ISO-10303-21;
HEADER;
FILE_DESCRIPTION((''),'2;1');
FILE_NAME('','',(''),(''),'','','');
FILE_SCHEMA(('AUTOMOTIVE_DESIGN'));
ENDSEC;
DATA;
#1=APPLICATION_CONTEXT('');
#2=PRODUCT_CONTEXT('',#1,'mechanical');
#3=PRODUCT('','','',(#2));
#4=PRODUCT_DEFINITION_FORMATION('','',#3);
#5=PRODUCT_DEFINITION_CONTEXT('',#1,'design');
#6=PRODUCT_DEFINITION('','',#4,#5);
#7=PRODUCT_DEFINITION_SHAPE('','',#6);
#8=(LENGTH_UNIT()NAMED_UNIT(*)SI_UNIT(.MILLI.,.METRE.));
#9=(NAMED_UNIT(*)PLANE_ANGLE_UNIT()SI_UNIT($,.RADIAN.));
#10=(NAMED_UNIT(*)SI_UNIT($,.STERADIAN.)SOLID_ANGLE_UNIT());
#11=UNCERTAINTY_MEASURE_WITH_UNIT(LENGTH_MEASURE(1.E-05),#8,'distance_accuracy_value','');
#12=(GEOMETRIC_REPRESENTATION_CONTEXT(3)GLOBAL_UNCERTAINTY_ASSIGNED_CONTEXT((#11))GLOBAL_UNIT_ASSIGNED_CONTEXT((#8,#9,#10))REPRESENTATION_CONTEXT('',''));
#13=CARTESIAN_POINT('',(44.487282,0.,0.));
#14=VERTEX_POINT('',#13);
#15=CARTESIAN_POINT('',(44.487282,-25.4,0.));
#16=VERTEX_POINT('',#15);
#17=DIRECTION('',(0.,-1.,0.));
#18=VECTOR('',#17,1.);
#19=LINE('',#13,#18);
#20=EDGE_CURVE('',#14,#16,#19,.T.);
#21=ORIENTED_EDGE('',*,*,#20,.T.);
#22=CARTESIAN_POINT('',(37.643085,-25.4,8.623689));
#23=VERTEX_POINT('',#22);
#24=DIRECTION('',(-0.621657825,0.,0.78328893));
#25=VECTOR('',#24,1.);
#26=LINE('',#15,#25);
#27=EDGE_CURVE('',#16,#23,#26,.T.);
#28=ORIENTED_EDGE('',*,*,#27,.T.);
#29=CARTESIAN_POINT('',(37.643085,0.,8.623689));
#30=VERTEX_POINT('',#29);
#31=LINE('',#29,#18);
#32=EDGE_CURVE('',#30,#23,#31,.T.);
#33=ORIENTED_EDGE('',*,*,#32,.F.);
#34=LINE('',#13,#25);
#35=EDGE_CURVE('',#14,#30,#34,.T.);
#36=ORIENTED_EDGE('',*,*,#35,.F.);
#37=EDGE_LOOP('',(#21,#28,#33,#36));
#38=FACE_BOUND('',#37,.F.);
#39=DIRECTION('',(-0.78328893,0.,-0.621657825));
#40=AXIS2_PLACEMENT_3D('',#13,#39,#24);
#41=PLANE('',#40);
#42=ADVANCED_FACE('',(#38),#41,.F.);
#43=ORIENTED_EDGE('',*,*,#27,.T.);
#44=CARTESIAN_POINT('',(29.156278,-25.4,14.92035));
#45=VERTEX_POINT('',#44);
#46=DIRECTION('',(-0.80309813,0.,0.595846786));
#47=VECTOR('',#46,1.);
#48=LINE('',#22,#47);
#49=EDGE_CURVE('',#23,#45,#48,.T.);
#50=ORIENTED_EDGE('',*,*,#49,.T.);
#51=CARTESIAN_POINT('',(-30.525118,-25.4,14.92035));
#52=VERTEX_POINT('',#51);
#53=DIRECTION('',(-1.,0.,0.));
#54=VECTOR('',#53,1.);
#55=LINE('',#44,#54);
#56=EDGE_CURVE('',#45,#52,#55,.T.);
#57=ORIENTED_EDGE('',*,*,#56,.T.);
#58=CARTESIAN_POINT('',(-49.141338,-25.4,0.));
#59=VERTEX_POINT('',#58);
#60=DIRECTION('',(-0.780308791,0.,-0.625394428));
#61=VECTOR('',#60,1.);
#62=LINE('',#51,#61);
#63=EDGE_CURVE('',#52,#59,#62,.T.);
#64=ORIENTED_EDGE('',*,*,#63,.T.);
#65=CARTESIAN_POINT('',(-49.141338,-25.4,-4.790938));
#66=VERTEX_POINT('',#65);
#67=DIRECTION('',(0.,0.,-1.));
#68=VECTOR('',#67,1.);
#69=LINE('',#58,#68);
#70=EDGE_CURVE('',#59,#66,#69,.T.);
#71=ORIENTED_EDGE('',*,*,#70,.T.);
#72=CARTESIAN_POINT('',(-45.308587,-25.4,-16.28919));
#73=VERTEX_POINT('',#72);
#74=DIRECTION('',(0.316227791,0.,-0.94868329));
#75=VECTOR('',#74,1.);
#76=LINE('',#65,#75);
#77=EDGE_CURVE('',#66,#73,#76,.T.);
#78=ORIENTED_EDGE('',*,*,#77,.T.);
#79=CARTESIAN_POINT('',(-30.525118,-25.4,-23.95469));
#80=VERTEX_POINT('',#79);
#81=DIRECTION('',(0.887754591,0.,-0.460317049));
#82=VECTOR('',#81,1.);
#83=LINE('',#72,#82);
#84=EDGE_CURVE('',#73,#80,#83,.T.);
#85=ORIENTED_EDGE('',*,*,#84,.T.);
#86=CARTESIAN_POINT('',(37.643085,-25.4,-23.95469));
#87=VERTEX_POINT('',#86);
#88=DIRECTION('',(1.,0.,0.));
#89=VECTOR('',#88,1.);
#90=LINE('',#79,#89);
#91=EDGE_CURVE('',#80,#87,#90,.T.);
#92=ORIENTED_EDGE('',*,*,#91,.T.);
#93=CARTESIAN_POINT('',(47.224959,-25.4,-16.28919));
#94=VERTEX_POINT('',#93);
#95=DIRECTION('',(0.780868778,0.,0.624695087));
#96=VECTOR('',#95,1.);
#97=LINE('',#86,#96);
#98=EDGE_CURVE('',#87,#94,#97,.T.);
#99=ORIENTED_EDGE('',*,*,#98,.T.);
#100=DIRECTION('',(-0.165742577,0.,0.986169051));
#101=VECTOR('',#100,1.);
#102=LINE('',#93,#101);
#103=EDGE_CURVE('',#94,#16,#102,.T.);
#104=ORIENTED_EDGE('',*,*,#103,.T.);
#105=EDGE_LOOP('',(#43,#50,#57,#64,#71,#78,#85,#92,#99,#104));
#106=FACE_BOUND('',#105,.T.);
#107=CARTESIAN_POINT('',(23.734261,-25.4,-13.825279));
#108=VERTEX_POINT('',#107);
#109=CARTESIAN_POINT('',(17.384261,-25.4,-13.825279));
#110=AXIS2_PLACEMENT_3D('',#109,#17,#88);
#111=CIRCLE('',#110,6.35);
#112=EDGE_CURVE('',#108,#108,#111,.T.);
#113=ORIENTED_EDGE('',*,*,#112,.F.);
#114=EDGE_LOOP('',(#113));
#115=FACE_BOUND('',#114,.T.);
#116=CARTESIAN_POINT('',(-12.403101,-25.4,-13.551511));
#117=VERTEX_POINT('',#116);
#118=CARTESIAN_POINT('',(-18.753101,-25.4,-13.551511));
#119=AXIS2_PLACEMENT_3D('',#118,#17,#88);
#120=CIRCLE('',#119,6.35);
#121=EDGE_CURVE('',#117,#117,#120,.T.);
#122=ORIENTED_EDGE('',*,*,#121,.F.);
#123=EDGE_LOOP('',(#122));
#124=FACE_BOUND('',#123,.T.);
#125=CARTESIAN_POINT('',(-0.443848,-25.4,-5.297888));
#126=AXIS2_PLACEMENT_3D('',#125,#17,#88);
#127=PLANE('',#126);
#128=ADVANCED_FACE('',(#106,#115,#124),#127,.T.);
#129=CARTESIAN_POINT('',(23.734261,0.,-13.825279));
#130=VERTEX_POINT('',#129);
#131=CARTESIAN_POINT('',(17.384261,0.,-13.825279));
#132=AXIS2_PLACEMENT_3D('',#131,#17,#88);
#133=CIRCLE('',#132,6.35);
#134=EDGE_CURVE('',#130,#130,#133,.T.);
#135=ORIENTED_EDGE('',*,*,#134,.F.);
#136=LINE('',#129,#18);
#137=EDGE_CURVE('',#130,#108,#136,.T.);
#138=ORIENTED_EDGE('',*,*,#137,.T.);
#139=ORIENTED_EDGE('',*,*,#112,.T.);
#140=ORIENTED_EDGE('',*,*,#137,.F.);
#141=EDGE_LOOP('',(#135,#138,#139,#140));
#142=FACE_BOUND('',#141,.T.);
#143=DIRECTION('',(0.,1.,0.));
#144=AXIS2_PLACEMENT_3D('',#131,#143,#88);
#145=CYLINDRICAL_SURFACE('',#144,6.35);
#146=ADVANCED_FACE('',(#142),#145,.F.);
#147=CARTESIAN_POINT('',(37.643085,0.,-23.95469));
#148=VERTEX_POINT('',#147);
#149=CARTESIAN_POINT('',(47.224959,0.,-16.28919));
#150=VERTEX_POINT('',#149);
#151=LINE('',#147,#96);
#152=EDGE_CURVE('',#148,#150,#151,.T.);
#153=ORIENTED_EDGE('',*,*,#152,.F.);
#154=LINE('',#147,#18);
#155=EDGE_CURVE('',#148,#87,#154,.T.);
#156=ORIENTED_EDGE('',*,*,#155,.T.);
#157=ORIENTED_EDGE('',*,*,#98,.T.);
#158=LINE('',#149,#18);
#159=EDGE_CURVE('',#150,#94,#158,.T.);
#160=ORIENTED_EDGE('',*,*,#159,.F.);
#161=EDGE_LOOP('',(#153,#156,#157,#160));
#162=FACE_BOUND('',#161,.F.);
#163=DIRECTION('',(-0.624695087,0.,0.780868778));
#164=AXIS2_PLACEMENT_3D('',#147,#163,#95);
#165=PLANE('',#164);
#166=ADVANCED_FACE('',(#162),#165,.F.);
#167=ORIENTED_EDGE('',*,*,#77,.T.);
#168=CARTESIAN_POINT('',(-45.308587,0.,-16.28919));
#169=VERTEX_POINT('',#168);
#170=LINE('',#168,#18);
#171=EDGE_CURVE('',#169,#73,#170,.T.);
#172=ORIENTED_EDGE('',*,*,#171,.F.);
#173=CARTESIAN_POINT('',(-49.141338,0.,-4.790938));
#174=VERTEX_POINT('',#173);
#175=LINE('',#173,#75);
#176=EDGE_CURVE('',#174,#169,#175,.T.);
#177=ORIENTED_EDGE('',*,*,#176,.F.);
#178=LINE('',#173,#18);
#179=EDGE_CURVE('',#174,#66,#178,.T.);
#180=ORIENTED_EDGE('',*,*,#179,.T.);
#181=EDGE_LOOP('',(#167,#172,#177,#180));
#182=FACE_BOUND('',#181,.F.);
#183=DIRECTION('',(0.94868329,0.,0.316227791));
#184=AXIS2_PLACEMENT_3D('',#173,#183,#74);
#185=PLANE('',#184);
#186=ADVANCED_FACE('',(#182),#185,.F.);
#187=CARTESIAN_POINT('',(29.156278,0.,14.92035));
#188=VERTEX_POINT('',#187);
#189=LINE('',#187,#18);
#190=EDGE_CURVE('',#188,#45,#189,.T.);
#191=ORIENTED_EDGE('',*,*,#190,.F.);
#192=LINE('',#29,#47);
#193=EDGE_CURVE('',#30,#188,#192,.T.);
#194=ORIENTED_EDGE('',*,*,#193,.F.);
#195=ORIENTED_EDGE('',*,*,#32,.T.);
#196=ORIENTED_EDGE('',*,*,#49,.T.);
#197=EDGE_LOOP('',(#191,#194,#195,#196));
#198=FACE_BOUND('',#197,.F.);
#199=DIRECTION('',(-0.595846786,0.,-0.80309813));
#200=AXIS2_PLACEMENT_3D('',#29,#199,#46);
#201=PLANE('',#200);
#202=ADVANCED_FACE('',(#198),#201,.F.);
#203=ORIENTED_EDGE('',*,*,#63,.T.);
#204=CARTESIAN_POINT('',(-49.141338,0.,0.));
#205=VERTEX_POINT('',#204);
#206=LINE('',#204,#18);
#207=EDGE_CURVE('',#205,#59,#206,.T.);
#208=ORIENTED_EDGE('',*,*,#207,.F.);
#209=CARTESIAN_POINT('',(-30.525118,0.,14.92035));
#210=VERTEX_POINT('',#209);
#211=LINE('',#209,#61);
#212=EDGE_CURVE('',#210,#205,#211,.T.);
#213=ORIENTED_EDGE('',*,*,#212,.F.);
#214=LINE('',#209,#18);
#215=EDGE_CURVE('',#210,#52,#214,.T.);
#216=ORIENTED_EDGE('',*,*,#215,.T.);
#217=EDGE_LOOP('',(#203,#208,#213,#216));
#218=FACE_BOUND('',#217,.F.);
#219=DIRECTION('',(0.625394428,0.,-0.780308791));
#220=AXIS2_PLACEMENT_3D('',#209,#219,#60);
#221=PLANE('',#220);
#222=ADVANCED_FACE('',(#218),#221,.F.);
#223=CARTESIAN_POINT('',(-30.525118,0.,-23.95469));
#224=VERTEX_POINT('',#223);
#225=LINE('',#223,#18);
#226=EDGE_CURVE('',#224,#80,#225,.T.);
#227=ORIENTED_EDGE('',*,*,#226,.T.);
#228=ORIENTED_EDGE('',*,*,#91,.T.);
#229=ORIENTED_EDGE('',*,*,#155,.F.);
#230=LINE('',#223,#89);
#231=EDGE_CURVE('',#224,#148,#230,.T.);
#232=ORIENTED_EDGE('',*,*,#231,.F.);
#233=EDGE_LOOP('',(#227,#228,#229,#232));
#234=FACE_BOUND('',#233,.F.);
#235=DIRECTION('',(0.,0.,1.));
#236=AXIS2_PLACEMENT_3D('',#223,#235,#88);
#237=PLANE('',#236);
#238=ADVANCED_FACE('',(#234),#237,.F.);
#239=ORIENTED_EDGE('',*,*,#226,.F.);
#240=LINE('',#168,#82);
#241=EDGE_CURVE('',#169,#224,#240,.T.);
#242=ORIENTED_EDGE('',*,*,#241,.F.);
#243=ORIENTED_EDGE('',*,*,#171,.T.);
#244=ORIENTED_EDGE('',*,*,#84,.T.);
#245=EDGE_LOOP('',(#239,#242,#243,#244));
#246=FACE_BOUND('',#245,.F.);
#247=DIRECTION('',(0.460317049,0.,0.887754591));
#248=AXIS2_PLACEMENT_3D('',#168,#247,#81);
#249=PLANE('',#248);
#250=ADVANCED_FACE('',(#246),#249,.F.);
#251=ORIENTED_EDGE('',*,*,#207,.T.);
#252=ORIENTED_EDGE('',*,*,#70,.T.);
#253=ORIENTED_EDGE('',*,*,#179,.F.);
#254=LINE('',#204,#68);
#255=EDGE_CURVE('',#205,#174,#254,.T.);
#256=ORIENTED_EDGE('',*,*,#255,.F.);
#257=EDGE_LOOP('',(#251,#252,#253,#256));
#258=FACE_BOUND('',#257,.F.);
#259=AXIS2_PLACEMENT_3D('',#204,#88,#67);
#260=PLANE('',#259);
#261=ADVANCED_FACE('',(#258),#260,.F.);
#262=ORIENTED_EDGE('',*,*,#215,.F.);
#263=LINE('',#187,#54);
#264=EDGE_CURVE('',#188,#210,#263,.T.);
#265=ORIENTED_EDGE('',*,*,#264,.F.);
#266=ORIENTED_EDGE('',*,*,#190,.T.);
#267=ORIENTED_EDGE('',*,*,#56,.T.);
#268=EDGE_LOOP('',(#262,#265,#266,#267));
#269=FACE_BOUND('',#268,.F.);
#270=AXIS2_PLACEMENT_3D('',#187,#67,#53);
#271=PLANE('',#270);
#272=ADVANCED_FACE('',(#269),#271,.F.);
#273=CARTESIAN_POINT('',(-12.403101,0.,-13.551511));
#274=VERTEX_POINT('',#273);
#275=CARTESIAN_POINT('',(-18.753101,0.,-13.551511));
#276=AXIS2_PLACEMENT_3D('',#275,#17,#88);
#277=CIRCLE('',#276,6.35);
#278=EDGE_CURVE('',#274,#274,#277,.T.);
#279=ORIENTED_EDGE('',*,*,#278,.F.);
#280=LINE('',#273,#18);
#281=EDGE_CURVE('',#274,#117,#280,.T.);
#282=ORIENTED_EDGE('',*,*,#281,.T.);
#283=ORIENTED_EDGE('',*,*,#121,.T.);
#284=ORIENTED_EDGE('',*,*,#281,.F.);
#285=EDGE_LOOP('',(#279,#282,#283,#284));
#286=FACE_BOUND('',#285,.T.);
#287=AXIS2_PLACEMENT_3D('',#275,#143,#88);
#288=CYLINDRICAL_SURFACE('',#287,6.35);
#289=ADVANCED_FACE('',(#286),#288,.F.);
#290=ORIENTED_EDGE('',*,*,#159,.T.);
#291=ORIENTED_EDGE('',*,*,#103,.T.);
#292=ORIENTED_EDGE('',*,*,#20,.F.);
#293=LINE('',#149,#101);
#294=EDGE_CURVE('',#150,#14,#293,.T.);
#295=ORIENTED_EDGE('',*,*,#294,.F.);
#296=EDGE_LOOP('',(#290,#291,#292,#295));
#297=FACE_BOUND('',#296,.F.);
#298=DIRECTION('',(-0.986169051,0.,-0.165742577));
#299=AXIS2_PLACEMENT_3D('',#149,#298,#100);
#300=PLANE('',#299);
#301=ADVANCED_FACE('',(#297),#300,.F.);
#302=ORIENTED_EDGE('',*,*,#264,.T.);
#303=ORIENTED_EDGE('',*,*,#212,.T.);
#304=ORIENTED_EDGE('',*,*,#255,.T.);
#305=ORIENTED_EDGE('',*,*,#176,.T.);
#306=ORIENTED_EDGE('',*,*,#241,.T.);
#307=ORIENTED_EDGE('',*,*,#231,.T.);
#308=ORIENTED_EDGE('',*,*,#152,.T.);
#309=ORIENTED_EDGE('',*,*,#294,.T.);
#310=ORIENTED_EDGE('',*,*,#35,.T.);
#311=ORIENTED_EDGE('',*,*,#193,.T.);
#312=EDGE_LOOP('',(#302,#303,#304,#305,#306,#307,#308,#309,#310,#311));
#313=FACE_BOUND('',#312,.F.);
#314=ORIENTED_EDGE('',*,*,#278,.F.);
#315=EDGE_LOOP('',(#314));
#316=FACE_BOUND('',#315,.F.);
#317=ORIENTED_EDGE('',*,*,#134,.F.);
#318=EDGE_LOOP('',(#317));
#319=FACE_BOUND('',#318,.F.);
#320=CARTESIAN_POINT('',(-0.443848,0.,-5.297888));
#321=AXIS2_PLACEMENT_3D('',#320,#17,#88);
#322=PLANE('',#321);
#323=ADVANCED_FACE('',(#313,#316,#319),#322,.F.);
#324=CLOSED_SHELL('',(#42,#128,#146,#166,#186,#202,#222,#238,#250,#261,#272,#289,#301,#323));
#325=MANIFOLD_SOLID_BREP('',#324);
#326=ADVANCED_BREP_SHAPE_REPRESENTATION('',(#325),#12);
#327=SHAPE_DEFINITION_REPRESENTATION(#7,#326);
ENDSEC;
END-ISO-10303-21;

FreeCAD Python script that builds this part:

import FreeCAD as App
import Part
import Sketcher
Q = App.Units.Quantity


def add_polygon(sketch, points):
    """Adds a closed chain of lines whose ends are joined by coincident constraints."""
    first, n = sketch.GeometryCount, len(points)
    for a, b in zip(points, points[1:] + points[:1]):
        sketch.addGeometry(Part.LineSegment(App.Vector(*a, 0), App.Vector(*b, 0)), False)
    for i in range(n):
        sketch.addConstraint(Sketcher.Constraint("Coincident", first + i, 2, first + (i + 1) % n, 1))

doc = App.newDocument("Part")
body = doc.addObject("PartDesign::Body", "Body")

sketch1 = doc.addObject("Sketcher::SketchObject", "Sketch")
body.addObject(sketch1)
sketch1.AttachmentSupport = (doc.XZ_Plane, [""])
sketch1.MapMode = "FlatFace"
add_polygon(sketch1, [(29.2, 14.9), (-30.5, 14.9), (-49.1, 0), (-49.1, -4.8), (-45.3, -16.3), (-30.5, -24), (37.6, -24), (47.2, -16.3), (44.5, 0), (37.6, 8.6)])
sketch1.addGeometry(Part.Circle(App.Vector(17.4, -13.8, 0), App.Vector(0, 0, 1), 6.3), False)
sketch1.addGeometry(Part.Circle(App.Vector(-18.8, -13.6, 0), App.Vector(0, 0, 1), 6.3), False)
sketch1.addConstraint([
    Sketcher.Constraint("Horizontal", 0),
    Sketcher.Constraint("Vertical", 2),
    Sketcher.Constraint("Horizontal", 5),
    Sketcher.Constraint("Equal", 10, 11),
    Sketcher.Constraint("PointOnObject", 1, 2, -1),
    Sketcher.Constraint("PointOnObject", 7, 2, -1),
    Sketcher.Constraint("Horizontal", 3, 2, 6, 2),
    Sketcher.Constraint("Vertical", 0, 2, 4, 2),
    Sketcher.Constraint("Vertical", 5, 2, 8, 2),
    Sketcher.Constraint("Diameter", 10, Q("0.5 in")),
    Sketcher.Constraint("DistanceY", 8, 2, 9, 2, Q("0.2479 in")),
    Sketcher.Constraint("DistanceX", 11, 3, -1, 1, Q("18.753101 mm")),
    Sketcher.Constraint("DistanceX", 1, 2, 10, 3, Q("66.525599 mm")),
    Sketcher.Constraint("DistanceY", 4, 2, 3, 2, Q("7.6655 mm")),
    Sketcher.Constraint("DistanceX", 10, 3, 6, 2, Q("29.840698 mm")),
    Sketcher.Constraint("DistanceX", 0, 2, 7, 2, Q("75.0124 mm")),
    Sketcher.Constraint("DistanceY", 11, 3, 8, 2, Q("22.1752 mm")),
    Sketcher.Constraint("Distance", 3, Q("12.120222 mm")),
    Sketcher.Constraint("Distance", 8, Q("11.009589 mm")),
    Sketcher.Constraint("DistanceX", 0, 2, 0, 1, Q("59.681396 mm")),
    Sketcher.Constraint("DistanceX", 5, 1, 5, 2, Q("68.168203 mm")),
    Sketcher.Constraint("DistanceY", 2, 2, 2, 1, Q("4.790938 mm")),
    Sketcher.Constraint("DistanceX", -1, 1, 10, 3, Q("17.384261 mm")),
    Sketcher.Constraint("DistanceY", 10, 3, -1, 1, Q("13.825279 mm")),
    Sketcher.Constraint("DistanceY", 3, 2, -1, 1, Q("16.28919 mm")),
    Sketcher.Constraint("DistanceX", -1, 1, 9, 2, Q("29.156278 mm")),
])
pad1 = doc.addObject("PartDesign::Pad", "Pad")
body.addObject(pad1)
pad1.Profile = sketch1
pad1.Length = Q("1 in")

doc.recompute()
